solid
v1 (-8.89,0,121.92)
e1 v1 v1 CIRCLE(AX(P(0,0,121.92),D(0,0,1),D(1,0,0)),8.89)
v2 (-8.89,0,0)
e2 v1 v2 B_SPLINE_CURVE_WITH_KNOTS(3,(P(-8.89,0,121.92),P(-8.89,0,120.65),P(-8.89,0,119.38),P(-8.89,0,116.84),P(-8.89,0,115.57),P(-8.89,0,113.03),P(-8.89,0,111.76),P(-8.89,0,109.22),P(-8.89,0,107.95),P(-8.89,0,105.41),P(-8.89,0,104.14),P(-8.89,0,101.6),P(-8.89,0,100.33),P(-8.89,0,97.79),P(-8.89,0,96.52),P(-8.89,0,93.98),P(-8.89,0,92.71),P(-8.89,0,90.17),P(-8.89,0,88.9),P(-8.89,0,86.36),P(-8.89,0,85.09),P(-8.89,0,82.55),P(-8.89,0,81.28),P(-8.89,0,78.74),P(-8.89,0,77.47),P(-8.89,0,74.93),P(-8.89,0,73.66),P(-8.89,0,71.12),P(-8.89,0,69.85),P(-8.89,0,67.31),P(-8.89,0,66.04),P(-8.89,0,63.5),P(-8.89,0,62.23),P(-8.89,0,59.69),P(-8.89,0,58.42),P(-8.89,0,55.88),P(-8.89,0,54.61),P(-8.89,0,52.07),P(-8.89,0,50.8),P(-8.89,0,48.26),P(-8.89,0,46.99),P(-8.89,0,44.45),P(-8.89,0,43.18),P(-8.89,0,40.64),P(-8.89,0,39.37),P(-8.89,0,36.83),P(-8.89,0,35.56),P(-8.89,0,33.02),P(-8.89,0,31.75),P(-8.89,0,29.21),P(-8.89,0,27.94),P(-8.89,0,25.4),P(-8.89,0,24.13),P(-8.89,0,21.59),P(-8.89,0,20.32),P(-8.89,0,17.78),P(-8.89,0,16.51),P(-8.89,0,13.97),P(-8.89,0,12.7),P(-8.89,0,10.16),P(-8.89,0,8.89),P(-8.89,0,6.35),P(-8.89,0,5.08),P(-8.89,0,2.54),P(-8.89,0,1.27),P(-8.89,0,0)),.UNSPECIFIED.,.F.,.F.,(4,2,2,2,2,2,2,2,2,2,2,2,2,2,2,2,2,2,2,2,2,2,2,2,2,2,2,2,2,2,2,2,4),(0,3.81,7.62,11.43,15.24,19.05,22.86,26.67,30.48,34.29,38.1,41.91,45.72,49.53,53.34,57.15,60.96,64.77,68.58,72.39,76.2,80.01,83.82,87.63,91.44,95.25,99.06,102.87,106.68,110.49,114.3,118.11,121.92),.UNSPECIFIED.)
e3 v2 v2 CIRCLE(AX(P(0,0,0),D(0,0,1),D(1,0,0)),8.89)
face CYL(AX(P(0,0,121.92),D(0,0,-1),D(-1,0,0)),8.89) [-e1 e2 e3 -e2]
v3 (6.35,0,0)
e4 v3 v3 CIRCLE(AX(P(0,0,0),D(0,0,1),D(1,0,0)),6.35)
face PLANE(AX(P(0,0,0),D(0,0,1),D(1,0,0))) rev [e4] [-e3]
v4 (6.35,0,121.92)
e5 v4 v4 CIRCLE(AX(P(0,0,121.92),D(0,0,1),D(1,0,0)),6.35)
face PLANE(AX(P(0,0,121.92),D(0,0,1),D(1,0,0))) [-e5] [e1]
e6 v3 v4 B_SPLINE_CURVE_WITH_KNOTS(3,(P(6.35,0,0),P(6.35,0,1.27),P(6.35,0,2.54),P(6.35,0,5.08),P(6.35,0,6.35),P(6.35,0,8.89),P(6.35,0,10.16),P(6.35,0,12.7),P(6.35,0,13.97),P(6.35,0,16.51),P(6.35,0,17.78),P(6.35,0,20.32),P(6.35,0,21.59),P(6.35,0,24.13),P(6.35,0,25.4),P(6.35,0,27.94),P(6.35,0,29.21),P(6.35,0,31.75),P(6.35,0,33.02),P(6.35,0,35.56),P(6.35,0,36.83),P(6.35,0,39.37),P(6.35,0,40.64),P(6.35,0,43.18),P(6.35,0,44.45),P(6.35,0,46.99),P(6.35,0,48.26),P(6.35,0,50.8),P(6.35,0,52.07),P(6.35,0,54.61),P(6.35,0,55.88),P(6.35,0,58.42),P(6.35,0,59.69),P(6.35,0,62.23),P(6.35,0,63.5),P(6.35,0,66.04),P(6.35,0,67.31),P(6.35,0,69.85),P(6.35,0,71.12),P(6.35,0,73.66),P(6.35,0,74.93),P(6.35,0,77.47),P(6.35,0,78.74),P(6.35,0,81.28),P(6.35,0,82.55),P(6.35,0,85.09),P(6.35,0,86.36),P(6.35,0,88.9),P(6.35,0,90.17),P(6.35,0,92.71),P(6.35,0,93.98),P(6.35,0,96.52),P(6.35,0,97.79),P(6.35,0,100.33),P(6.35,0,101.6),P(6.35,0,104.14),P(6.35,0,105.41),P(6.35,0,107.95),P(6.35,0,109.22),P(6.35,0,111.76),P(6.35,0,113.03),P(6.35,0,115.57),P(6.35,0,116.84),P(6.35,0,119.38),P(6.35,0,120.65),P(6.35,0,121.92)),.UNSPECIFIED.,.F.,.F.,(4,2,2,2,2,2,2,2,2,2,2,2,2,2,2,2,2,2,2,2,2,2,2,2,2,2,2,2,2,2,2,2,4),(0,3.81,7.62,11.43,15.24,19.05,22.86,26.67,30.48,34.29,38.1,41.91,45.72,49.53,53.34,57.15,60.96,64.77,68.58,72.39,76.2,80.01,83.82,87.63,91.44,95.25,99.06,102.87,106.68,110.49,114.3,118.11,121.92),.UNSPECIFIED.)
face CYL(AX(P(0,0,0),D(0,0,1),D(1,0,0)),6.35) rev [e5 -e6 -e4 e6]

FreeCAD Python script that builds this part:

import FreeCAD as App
import Part
import Sketcher

V = App.Vector
Q = App.Units.Quantity

doc = App.newDocument("Part")
body = doc.addObject("PartDesign::Body", "Body")

sketch1 = body.newObject("Sketcher::SketchObject", "Sketch")
sketch1.AttachmentSupport = (doc.getObject("XY_Plane"), [""])
sketch1.MapMode = "FlatFace"
sketch1.addGeometry(Part.Circle(V(0, 0, 0), V(0, 0, 1), 8.89), False)
sketch1.addConstraint([
    Sketcher.Constraint("Coincident", 0, 3, -1, 1),
    Sketcher.Constraint("Diameter", 0, Q("0.7 in")),
])
pad1 = body.newObject("PartDesign::Pad", "Pad")
pad1.Profile = sketch1
pad1.Length = Q("4.8 in")

sketch2 = body.newObject("Sketcher::SketchObject", "Sketch001")
sketch2.AttachmentSupport = (doc.getObject("XY_Plane"), [""])
sketch2.MapMode = "FlatFace"
sketch2.AttachmentOffset = App.Placement(V(0, 0, 4.8 * 25.4), App.Rotation())
sketch2.addGeometry(Part.Circle(V(0, 0, 0), V(0, 0, 1), 6.35), False)
sketch2.addConstraint([
    Sketcher.Constraint("Coincident", 0, 3, -1, 1),
    Sketcher.Constraint("Diameter", 0, Q("0.5 in")),
])
pocket1 = body.newObject("PartDesign::Pocket", "Pocket")
pocket1.Profile = sketch2
pocket1.Type = "ThroughAll"

doc.recompute()
